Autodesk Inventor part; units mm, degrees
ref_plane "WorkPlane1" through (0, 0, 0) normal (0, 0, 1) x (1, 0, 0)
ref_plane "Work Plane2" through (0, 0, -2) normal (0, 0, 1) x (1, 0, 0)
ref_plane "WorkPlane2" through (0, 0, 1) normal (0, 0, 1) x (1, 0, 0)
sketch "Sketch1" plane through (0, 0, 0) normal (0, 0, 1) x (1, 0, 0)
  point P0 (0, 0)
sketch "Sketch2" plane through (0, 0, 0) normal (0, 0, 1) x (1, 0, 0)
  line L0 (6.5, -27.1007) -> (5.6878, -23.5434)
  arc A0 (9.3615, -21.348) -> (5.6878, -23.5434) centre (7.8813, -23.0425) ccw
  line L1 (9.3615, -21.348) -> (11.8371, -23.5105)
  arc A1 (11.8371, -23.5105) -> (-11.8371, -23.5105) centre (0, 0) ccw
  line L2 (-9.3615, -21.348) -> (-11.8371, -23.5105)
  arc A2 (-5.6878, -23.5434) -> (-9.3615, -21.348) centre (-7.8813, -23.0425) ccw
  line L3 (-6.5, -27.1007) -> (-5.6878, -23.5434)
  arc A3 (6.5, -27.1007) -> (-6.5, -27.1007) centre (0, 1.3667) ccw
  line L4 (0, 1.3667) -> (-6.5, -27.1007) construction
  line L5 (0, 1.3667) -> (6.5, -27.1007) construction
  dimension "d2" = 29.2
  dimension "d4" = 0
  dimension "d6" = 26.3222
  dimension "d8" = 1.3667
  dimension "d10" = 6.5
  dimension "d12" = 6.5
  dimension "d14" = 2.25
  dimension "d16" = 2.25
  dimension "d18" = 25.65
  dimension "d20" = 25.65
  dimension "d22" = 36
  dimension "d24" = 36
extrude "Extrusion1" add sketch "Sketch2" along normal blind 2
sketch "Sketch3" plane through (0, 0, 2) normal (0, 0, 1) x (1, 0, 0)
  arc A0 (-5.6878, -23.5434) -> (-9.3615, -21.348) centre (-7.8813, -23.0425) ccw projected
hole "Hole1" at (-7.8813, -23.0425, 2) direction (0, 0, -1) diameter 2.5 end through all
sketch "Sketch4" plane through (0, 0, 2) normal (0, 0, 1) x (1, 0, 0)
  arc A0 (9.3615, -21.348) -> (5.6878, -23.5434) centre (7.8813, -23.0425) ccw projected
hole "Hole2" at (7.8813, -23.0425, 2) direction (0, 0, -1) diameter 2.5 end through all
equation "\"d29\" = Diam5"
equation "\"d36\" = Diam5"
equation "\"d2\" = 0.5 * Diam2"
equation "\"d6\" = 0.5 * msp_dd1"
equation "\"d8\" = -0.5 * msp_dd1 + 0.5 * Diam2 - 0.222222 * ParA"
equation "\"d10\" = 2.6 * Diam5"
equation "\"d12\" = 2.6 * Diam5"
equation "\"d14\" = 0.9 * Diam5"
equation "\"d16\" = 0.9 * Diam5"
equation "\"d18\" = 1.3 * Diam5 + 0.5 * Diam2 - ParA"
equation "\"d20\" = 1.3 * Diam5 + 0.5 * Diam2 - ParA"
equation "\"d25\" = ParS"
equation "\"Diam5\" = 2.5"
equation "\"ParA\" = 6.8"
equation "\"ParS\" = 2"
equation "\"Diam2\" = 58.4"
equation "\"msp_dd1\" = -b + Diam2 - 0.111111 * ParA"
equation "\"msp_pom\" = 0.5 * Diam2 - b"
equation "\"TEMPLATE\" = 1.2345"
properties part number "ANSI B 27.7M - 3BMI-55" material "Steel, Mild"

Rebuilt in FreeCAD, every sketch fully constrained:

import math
import FreeCAD as App
import Part
import Sketcher

V = App.Vector

doc = App.newDocument("Part")
body = doc.addObject("PartDesign::Body", "Body")

# Sketch on XY plane
sketch1 = doc.addObject("Sketcher::SketchObject", "Sketch")
body.addObject(sketch1)
sketch1.AttachmentSupport = (doc.XY_Plane, [""])
sketch1.MapMode = "FlatFace"
sketch1.addGeometry([
    Part.LineSegment(V(5.7, -23.5, 0), V(6.5, -27.1, 0)),  # 0
    Part.ArcOfCircle(Part.Circle(V(0, 1.4, 0), V(0, 0, 1), 29.2), math.radians(-77), math.radians(257)),  # 1
    Part.LineSegment(V(-6.5, -27.1, 0), V(-5.7, -23.5, 0)),  # 2
    Part.ArcOfCircle(Part.Circle(V(-7.9, -23, 0), V(0, 0, 1), 2.2), math.radians(-13), math.radians(131)),  # 3
    Part.LineSegment(V(-9.4, -21.3, 0), V(-11.8, -23.5, 0)),  # 4
    Part.ArcOfCircle(Part.Circle(V(0, 0, 0), V(0, 0, 1), 26.3), math.radians(-63), math.radians(243)),  # 5
    Part.LineSegment(V(11.8, -23.5, 0), V(9.4, -21.3, 0)),  # 6
    Part.ArcOfCircle(Part.Circle(V(7.9, -23, 0), V(0, 0, 1), 2.2), math.radians(49), math.radians(193)),  # 7
], False)
sketch1.addConstraint([
    Sketcher.Constraint("Coincident", 0, 2, 1, 1),
    Sketcher.Constraint("Coincident", 1, 2, 2, 1),
    Sketcher.Constraint("Tangent", 2, 2, 3, 1),
    Sketcher.Constraint("Tangent", 3, 2, 4, 1),
    Sketcher.Constraint("Coincident", 4, 2, 5, 2),
    Sketcher.Constraint("Coincident", 5, 1, 6, 1),
    Sketcher.Constraint("Tangent", 6, 2, 7, 1),
    Sketcher.Constraint("Tangent", 7, 2, 0, 1),
    Sketcher.Constraint("Coincident", 5, 3, -1, 1),
    Sketcher.Constraint("Equal", 3, 7),
    Sketcher.Constraint("Symmetric", 3, 3, 7, 3, -2),
    Sketcher.Constraint("Symmetric", 0, 2, 1, 2, -2),
    Sketcher.Constraint("Horizontal", 4, 2, 5, 1),
    Sketcher.Constraint("Radius", 1, 29.2),
    Sketcher.Constraint("Radius", 3, 2.25),
    Sketcher.Constraint("DistanceX", -1, 1, 0, 2, 6.5),
    Sketcher.Constraint("Radius", 5, 26.3222),
    Sketcher.Constraint("DistanceY", -1, 1, 1, 3, 1.3667),
    Sketcher.Constraint("Distance", 4, 3.287),
    Sketcher.Constraint("DistanceY", 3, 2, -1, 1, 21.348),
    Sketcher.Constraint("DistanceX", 4, 2, -1, 1, 11.837),
])
pad1 = doc.addObject("PartDesign::Pad", "Pad")
body.addObject(pad1)
pad1.Profile = sketch1
pad1.Length = 2

# Sketch on XY plane
sketch2 = doc.addObject("Sketcher::SketchObject", "Sketch001")
body.addObject(sketch2)
sketch2.AttachmentSupport = (doc.XY_Plane, [""])
sketch2.MapMode = "FlatFace"
sketch2.AttachmentOffset = App.Placement(V(0, 0, 2), App.Rotation())
sketch2.addGeometry(Part.Circle(V(-7.9, -23, 0), V(0, 0, 1), 1.2), False)
sketch2.addConstraint([
    Sketcher.Constraint("Diameter", 0, 2.5),
    Sketcher.Constraint("DistanceX", 0, 3, -1, 1, 7.8813),
    Sketcher.Constraint("DistanceY", 0, 3, -1, 1, 23.0425),
])
doc.recompute()
hole = doc.addObject("PartDesign::Hole", "Hole")
body.addObject(hole)
hole.Profile = sketch2
hole.ThreadType = "None"
hole.Diameter = 2.5
hole.DepthType = "ThroughAll"

# Sketch on XY plane
sketch3 = doc.addObject("Sketcher::SketchObject", "Sketch002")
body.addObject(sketch3)
sketch3.AttachmentSupport = (doc.XY_Plane, [""])
sketch3.MapMode = "FlatFace"
sketch3.AttachmentOffset = App.Placement(V(0, 0, 2), App.Rotation())
sketch3.addGeometry(Part.Circle(V(7.9, -23, 0), V(0, 0, 1), 1.2), False)
sketch3.addConstraint([
    Sketcher.Constraint("Diameter", 0, 2.5),
    Sketcher.Constraint("DistanceX", -1, 1, 0, 3, 7.8813),
    Sketcher.Constraint("DistanceY", 0, 3, -1, 1, 23.0425),
])
doc.recompute()
hole2 = doc.addObject("PartDesign::Hole", "Hole001")
body.addObject(hole2)
hole2.Profile = sketch3
hole2.ThreadType = "None"
hole2.Diameter = 2.5
hole2.DepthType = "ThroughAll"

doc.recompute()
